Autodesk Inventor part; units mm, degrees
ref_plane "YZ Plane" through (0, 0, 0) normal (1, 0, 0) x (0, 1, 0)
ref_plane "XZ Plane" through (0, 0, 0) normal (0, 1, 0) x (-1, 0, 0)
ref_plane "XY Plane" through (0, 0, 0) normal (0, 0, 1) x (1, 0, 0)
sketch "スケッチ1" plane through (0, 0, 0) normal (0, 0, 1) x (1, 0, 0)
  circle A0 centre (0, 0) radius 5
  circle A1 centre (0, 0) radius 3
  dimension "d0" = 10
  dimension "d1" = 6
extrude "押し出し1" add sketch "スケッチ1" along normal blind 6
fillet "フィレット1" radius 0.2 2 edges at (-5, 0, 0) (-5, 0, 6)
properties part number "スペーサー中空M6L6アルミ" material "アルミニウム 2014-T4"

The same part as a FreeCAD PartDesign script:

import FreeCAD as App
import Part
import Sketcher

V = App.Vector


def edges_at(feature, points):
    """Names of the edges that pass closest to the given points."""
    edges = feature.Shape.Edges
    near = lambda p: min(range(len(edges)), key=lambda i: edges[i].distToShape(Part.Vertex(*p))[0])
    return sorted({f"Edge{near(p) + 1}" for p in points})

doc = App.newDocument("Part")
body = doc.addObject("PartDesign::Body", "Body")

sketch1 = body.newObject("Sketcher::SketchObject", "Sketch")
sketch1.AttachmentSupport = (doc.getObject("XY_Plane"), [""])
sketch1.MapMode = "FlatFace"
sketch1.addGeometry(Part.Circle(V(0, 0, 0), V(0, 0, 1), 5), False)
sketch1.addGeometry(Part.Circle(V(0, 0, 0), V(0, 0, 1), 3), False)
sketch1.addConstraint(Sketcher.Constraint("Coincident", 0, 3, -1, 1))
sketch1.addConstraint(Sketcher.Constraint("Coincident", 1, 3, -1, 1))
sketch1.addConstraint(Sketcher.Constraint("Diameter", 0, 10.0))
sketch1.addConstraint(Sketcher.Constraint("Diameter", 1, 6.0))
pad1 = body.newObject("PartDesign::Pad", "Pad")
pad1.Profile = sketch1
pad1.Length = 6
doc.recompute()

fillet = body.newObject("PartDesign::Fillet", "Fillet")
fillet.Base = (pad1, edges_at(pad1, [(-5, 0, 0), (-5, 0, 6)]))
fillet.Radius = 0.2

doc.recompute()
